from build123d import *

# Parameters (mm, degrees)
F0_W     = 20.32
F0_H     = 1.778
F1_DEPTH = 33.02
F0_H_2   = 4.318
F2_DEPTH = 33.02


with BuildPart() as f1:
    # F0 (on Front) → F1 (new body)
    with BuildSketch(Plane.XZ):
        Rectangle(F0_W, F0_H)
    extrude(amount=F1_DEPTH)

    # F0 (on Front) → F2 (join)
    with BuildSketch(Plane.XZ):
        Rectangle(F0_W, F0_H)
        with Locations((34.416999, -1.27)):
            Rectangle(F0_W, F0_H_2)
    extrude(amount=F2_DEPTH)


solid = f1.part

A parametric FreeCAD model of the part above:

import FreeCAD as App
import Part
import Sketcher
Q = App.Units.Quantity


def add_polygon(sketch, points):
    """Adds a closed chain of lines whose ends are joined by coincident constraints."""
    first, n = sketch.GeometryCount, len(points)
    for a, b in zip(points, points[1:] + points[:1]):
        sketch.addGeometry(Part.LineSegment(App.Vector(*a, 0), App.Vector(*b, 0)), False)
    for i in range(n):
        sketch.addConstraint(Sketcher.Constraint("Coincident", first + i, 2, first + (i + 1) % n, 1))

doc = App.newDocument("Part")
params = doc.addObject("Spreadsheet::Sheet", "Params")
for row, (alias, value) in enumerate([
    ("sketch1_width", "0.8 in"),
    ("sketch1_height", "0.07 in"),
    ("pad1_length", "1.3 in"),
    ("sketch2_width", "0.8 in"),
    ("sketch2_height", "0.07 in"),
    ("sketch2_height2", "0.17 in"),
    ("pad2_length", "1.3 in"),
], start=1):
    params.set(f"A{row}", alias)
    params.set(f"B{row}", "=" + value)
    params.setAlias(f"B{row}", alias)

body = doc.addObject("PartDesign::Body", "Body")
body.AllowCompound = True

# Sketch on XZ plane
sketch1 = body.newObject("Sketcher::SketchObject", "Sketch")
sketch1.AttachmentSupport = (doc.getObject("XZ_Plane"), [""])
sketch1.MapMode = "FlatFace"
add_polygon(sketch1, [(-10.2, 0.9), (-10.2, -0.9), (10.2, -0.9), (10.2, 0.9)])  # lines 0-3
sketch1.addConstraint(Sketcher.Constraint("Vertical", 0))
sketch1.addConstraint(Sketcher.Constraint("Horizontal", 1))
sketch1.addConstraint(Sketcher.Constraint("Vertical", 2))
sketch1.addConstraint(Sketcher.Constraint("Horizontal", 3))
sketch1.addConstraint(Sketcher.Constraint("Symmetric", 0, 2, 2, 2, -1, 1))
sketch1.addConstraint(Sketcher.Constraint("DistanceX", 1, 1, 1, 2, Q("0.8 in")))
sketch1.addConstraint(Sketcher.Constraint("DistanceY", 0, 2, 0, 1, Q("0.07 in")))
sketch1.setExpression("Constraints[9]", "Params.sketch1_width")
sketch1.setExpression("Constraints[10]", "Params.sketch1_height")
pad1 = body.newObject("PartDesign::Pad", "Pad")
pad1.Profile = sketch1
pad1.setExpression("Length", "Params.pad1_length")

# Sketch on XZ plane
sketch2 = body.newObject("Sketcher::SketchObject", "Sketch001")
sketch2.AttachmentSupport = (doc.getObject("XZ_Plane"), [""])
sketch2.MapMode = "FlatFace"
add_polygon(sketch2, [(-10.2, 0.9), (-10.2, -0.9), (10.2, -0.9), (10.2, 0.9)])  # lines 0-3
add_polygon(sketch2, [(24.3, 0.9), (24.3, -3.4), (44.6, -3.4), (44.6, 0.9)])  # lines 4-7
sketch2.addConstraint(Sketcher.Constraint("Vertical", 0))
sketch2.addConstraint(Sketcher.Constraint("Horizontal", 1))
sketch2.addConstraint(Sketcher.Constraint("Vertical", 2))
sketch2.addConstraint(Sketcher.Constraint("Horizontal", 3))
sketch2.addConstraint(Sketcher.Constraint("Vertical", 4))
sketch2.addConstraint(Sketcher.Constraint("Horizontal", 5))
sketch2.addConstraint(Sketcher.Constraint("Vertical", 6))
sketch2.addConstraint(Sketcher.Constraint("Horizontal", 7))
sketch2.addConstraint(Sketcher.Constraint("Symmetric", 0, 2, 2, 2, -1, 1))
sketch2.addConstraint(Sketcher.Constraint("Horizontal", 3, 2, 6, 2))
sketch2.addConstraint(Sketcher.Constraint("Equal", 3, 5))
sketch2.addConstraint(Sketcher.Constraint("DistanceX", 1, 1, 1, 2, Q("0.8 in")))
sketch2.addConstraint(Sketcher.Constraint("DistanceY", 0, 2, 0, 1, Q("0.07 in")))
sketch2.addConstraint(Sketcher.Constraint("DistanceY", 4, 2, 4, 1, Q("0.17 in")))
sketch2.addConstraint(Sketcher.Constraint("DistanceX", -1, 1, 4, 2, Q("0.955 in")))
sketch2.setExpression("Constraints[19]", "Params.sketch2_width")
sketch2.setExpression("Constraints[20]", "Params.sketch2_height")
sketch2.setExpression("Constraints[21]", "Params.sketch2_height2")
pad2 = body.newObject("PartDesign::Pad", "Pad001")
pad2.Profile = sketch2
pad2.setExpression("Length", "Params.pad2_length")

doc.recompute()
